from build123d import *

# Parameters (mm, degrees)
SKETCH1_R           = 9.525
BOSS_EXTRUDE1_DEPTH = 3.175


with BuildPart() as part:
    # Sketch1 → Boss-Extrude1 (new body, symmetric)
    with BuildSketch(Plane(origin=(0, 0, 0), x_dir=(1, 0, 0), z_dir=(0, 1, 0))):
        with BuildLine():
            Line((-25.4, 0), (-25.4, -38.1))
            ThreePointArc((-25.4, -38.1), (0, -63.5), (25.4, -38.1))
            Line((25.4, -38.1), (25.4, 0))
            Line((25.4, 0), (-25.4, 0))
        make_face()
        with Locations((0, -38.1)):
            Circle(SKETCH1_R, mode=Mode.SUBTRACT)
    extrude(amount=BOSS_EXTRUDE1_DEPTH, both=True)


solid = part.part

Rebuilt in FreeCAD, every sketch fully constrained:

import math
import FreeCAD as App
import Part
import Sketcher

V = App.Vector
Q = App.Units.Quantity

doc = App.newDocument("Part")
params = doc.addObject("Spreadsheet::Sheet", "Params")
for row, (alias, value) in enumerate([
    ("sketch1_radius", "1 in"),
    ("sketch1_diameter", "0.75 in"),
    ("sketch1_height", "1.5 in"),
    ("pad1_length", "0.25 in"),
], start=1):
    params.set(f"A{row}", alias)
    params.set(f"B{row}", "=" + value)
    params.setAlias(f"B{row}", alias)

body = doc.addObject("PartDesign::Body", "Body")

# Sketch on XZ plane
sketch1 = body.newObject("Sketcher::SketchObject", "Sketch")
sketch1.AttachmentSupport = (doc.getObject("XZ_Plane"), [""])
sketch1.MapMode = "FlatFace"
sketch1.addGeometry(Part.LineSegment(V(-25, 0, 0), V(-25, 38, 0)), False)
sketch1.addGeometry(Part.ArcOfCircle(Part.Circle(V(0, 38, 0), V(0, 0, 1), 25), math.radians(0), math.radians(180)), False)
sketch1.addGeometry(Part.LineSegment(V(25, 38, 0), V(25, 0, 0)), False)
sketch1.addGeometry(Part.LineSegment(V(25, 0, 0), V(-25, 0, 0)), False)
sketch1.addGeometry(Part.Circle(V(0, 38, 0), V(0, 0, 1), 10), False)
sketch1.addConstraint(Sketcher.Constraint("Tangent", 0, 2, 1, 2))
sketch1.addConstraint(Sketcher.Constraint("Tangent", 1, 1, 2, 1))
sketch1.addConstraint(Sketcher.Constraint("Coincident", 2, 2, 3, 1))
sketch1.addConstraint(Sketcher.Constraint("Coincident", 3, 2, 0, 1))
sketch1.addConstraint(Sketcher.Constraint("Vertical", 0))
sketch1.addConstraint(Sketcher.Constraint("Vertical", 2))
sketch1.addConstraint(Sketcher.Constraint("Horizontal", 3))
sketch1.addConstraint(Sketcher.Constraint("Coincident", 4, 3, 1, 3))
sketch1.addConstraint(Sketcher.Constraint("Symmetric", 2, 2, 3, 2, -1, 1))
sketch1.addConstraint(Sketcher.Constraint("Radius", 1, Q("1 in")))
sketch1.addConstraint(Sketcher.Constraint("Diameter", 4, Q("0.75 in")))
sketch1.addConstraint(Sketcher.Constraint("DistanceY", 0, 1, 0, 2, Q("1.5 in")))
sketch1.setExpression("Constraints[9]", "Params.sketch1_radius")
sketch1.setExpression("Constraints[10]", "Params.sketch1_diameter")
sketch1.setExpression("Constraints[11]", "Params.sketch1_height")
pad1 = body.newObject("PartDesign::Pad", "Pad")
pad1.Profile = sketch1
pad1.setExpression("Length", "Params.pad1_length")
pad1.Midplane = True

doc.recompute()
